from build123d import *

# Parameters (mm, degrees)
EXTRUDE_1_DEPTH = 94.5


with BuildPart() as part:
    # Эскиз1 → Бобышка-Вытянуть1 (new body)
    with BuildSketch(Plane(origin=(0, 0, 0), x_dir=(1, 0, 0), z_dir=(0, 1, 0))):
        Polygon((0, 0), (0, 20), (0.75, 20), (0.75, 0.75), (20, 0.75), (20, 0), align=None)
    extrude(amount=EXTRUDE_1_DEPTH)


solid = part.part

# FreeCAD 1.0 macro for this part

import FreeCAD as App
import Part
import Sketcher

V = App.Vector


def add_polygon(sketch, points):
    """Adds a closed chain of lines whose ends are joined by coincident constraints."""
    first, n = sketch.GeometryCount, len(points)
    for a, b in zip(points, points[1:] + points[:1]):
        sketch.addGeometry(Part.LineSegment(App.Vector(*a, 0), App.Vector(*b, 0)), False)
    for i in range(n):
        sketch.addConstraint(Sketcher.Constraint("Coincident", first + i, 2, first + (i + 1) % n, 1))

doc = App.newDocument("Part")
body = doc.addObject("PartDesign::Body", "Body")

sketch1 = body.newObject("Sketcher::SketchObject", "Sketch")
sketch1.AttachmentSupport = (doc.getObject("XZ_Plane"), [""])
sketch1.MapMode = "FlatFace"
add_polygon(sketch1, [(0, -20), (0, 0), (20, 0), (20, -0.75), (0.75, -0.75), (0.75, -20)])
sketch1.addConstraint([
    Sketcher.Constraint("Vertical", 0),
    Sketcher.Constraint("Horizontal", 1),
    Sketcher.Constraint("Vertical", 2),
    Sketcher.Constraint("Horizontal", 3),
    Sketcher.Constraint("Vertical", 4),
    Sketcher.Constraint("Horizontal", 5),
    Sketcher.Constraint("Coincident", 0, 2, -1, 1),
    Sketcher.Constraint("Equal", 1, 0),
    Sketcher.Constraint("Equal", 5, 2),
    Sketcher.Constraint("DistanceX", 1, 1, 1, 2, 20.0),
    Sketcher.Constraint("DistanceX", 3, 2, 3, 1, 19.25),
])
pad1 = body.newObject("PartDesign::Pad", "Pad")
pad1.Profile = sketch1
pad1.Length = 94.5
pad1.Reversed = True

doc.recompute()
